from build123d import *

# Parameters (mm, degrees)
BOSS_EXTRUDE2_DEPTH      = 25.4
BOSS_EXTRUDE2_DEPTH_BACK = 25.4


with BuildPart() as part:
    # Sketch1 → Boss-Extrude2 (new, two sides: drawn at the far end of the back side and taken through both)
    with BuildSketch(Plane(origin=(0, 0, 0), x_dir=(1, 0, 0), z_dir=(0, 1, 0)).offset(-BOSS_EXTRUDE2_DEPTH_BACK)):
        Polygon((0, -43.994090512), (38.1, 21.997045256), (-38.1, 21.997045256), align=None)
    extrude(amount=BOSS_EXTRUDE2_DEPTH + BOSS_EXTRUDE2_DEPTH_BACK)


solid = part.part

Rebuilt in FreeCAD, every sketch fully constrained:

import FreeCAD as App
import Part
import Sketcher

V = App.Vector
Q = App.Units.Quantity


def add_polygon(sketch, points):
    """Adds a closed chain of lines whose ends are joined by coincident constraints."""
    first, n = sketch.GeometryCount, len(points)
    for a, b in zip(points, points[1:] + points[:1]):
        sketch.addGeometry(Part.LineSegment(App.Vector(*a, 0), App.Vector(*b, 0)), False)
    for i in range(n):
        sketch.addConstraint(Sketcher.Constraint("Coincident", first + i, 2, first + (i + 1) % n, 1))

doc = App.newDocument("Part")
body = doc.addObject("PartDesign::Body", "Body")

# Sketch on XZ plane
sketch1 = body.newObject("Sketcher::SketchObject", "Sketch")
sketch1.AttachmentSupport = (doc.getObject("XZ_Plane"), [""])
sketch1.MapMode = "FlatFace"
add_polygon(sketch1, [(0, 44), (38, -22), (-38, -22)])  # lines 0-2
sketch1.addConstraint([
    Sketcher.Constraint("Horizontal", 1),
    Sketcher.Constraint("PointOnObject", 2, 2, -2),
    Sketcher.Constraint("Equal", 0, 2),
    Sketcher.Constraint("DistanceX", 1, 2, 1, 1, Q("3 in")),
    Sketcher.Constraint("Distance", 0, Q("3 in")),
    Sketcher.Constraint("DistanceY", -1, 1, 2, 2, Q("43.994091 mm")),
])
pad1 = body.newObject("PartDesign::Pad", "Pad")
pad1.Profile = sketch1
pad1.Type = "TwoLengths"
pad1.Length = Q("1 in")
pad1.Length2 = Q("1 in")
pad1.Reversed = True

doc.recompute()
